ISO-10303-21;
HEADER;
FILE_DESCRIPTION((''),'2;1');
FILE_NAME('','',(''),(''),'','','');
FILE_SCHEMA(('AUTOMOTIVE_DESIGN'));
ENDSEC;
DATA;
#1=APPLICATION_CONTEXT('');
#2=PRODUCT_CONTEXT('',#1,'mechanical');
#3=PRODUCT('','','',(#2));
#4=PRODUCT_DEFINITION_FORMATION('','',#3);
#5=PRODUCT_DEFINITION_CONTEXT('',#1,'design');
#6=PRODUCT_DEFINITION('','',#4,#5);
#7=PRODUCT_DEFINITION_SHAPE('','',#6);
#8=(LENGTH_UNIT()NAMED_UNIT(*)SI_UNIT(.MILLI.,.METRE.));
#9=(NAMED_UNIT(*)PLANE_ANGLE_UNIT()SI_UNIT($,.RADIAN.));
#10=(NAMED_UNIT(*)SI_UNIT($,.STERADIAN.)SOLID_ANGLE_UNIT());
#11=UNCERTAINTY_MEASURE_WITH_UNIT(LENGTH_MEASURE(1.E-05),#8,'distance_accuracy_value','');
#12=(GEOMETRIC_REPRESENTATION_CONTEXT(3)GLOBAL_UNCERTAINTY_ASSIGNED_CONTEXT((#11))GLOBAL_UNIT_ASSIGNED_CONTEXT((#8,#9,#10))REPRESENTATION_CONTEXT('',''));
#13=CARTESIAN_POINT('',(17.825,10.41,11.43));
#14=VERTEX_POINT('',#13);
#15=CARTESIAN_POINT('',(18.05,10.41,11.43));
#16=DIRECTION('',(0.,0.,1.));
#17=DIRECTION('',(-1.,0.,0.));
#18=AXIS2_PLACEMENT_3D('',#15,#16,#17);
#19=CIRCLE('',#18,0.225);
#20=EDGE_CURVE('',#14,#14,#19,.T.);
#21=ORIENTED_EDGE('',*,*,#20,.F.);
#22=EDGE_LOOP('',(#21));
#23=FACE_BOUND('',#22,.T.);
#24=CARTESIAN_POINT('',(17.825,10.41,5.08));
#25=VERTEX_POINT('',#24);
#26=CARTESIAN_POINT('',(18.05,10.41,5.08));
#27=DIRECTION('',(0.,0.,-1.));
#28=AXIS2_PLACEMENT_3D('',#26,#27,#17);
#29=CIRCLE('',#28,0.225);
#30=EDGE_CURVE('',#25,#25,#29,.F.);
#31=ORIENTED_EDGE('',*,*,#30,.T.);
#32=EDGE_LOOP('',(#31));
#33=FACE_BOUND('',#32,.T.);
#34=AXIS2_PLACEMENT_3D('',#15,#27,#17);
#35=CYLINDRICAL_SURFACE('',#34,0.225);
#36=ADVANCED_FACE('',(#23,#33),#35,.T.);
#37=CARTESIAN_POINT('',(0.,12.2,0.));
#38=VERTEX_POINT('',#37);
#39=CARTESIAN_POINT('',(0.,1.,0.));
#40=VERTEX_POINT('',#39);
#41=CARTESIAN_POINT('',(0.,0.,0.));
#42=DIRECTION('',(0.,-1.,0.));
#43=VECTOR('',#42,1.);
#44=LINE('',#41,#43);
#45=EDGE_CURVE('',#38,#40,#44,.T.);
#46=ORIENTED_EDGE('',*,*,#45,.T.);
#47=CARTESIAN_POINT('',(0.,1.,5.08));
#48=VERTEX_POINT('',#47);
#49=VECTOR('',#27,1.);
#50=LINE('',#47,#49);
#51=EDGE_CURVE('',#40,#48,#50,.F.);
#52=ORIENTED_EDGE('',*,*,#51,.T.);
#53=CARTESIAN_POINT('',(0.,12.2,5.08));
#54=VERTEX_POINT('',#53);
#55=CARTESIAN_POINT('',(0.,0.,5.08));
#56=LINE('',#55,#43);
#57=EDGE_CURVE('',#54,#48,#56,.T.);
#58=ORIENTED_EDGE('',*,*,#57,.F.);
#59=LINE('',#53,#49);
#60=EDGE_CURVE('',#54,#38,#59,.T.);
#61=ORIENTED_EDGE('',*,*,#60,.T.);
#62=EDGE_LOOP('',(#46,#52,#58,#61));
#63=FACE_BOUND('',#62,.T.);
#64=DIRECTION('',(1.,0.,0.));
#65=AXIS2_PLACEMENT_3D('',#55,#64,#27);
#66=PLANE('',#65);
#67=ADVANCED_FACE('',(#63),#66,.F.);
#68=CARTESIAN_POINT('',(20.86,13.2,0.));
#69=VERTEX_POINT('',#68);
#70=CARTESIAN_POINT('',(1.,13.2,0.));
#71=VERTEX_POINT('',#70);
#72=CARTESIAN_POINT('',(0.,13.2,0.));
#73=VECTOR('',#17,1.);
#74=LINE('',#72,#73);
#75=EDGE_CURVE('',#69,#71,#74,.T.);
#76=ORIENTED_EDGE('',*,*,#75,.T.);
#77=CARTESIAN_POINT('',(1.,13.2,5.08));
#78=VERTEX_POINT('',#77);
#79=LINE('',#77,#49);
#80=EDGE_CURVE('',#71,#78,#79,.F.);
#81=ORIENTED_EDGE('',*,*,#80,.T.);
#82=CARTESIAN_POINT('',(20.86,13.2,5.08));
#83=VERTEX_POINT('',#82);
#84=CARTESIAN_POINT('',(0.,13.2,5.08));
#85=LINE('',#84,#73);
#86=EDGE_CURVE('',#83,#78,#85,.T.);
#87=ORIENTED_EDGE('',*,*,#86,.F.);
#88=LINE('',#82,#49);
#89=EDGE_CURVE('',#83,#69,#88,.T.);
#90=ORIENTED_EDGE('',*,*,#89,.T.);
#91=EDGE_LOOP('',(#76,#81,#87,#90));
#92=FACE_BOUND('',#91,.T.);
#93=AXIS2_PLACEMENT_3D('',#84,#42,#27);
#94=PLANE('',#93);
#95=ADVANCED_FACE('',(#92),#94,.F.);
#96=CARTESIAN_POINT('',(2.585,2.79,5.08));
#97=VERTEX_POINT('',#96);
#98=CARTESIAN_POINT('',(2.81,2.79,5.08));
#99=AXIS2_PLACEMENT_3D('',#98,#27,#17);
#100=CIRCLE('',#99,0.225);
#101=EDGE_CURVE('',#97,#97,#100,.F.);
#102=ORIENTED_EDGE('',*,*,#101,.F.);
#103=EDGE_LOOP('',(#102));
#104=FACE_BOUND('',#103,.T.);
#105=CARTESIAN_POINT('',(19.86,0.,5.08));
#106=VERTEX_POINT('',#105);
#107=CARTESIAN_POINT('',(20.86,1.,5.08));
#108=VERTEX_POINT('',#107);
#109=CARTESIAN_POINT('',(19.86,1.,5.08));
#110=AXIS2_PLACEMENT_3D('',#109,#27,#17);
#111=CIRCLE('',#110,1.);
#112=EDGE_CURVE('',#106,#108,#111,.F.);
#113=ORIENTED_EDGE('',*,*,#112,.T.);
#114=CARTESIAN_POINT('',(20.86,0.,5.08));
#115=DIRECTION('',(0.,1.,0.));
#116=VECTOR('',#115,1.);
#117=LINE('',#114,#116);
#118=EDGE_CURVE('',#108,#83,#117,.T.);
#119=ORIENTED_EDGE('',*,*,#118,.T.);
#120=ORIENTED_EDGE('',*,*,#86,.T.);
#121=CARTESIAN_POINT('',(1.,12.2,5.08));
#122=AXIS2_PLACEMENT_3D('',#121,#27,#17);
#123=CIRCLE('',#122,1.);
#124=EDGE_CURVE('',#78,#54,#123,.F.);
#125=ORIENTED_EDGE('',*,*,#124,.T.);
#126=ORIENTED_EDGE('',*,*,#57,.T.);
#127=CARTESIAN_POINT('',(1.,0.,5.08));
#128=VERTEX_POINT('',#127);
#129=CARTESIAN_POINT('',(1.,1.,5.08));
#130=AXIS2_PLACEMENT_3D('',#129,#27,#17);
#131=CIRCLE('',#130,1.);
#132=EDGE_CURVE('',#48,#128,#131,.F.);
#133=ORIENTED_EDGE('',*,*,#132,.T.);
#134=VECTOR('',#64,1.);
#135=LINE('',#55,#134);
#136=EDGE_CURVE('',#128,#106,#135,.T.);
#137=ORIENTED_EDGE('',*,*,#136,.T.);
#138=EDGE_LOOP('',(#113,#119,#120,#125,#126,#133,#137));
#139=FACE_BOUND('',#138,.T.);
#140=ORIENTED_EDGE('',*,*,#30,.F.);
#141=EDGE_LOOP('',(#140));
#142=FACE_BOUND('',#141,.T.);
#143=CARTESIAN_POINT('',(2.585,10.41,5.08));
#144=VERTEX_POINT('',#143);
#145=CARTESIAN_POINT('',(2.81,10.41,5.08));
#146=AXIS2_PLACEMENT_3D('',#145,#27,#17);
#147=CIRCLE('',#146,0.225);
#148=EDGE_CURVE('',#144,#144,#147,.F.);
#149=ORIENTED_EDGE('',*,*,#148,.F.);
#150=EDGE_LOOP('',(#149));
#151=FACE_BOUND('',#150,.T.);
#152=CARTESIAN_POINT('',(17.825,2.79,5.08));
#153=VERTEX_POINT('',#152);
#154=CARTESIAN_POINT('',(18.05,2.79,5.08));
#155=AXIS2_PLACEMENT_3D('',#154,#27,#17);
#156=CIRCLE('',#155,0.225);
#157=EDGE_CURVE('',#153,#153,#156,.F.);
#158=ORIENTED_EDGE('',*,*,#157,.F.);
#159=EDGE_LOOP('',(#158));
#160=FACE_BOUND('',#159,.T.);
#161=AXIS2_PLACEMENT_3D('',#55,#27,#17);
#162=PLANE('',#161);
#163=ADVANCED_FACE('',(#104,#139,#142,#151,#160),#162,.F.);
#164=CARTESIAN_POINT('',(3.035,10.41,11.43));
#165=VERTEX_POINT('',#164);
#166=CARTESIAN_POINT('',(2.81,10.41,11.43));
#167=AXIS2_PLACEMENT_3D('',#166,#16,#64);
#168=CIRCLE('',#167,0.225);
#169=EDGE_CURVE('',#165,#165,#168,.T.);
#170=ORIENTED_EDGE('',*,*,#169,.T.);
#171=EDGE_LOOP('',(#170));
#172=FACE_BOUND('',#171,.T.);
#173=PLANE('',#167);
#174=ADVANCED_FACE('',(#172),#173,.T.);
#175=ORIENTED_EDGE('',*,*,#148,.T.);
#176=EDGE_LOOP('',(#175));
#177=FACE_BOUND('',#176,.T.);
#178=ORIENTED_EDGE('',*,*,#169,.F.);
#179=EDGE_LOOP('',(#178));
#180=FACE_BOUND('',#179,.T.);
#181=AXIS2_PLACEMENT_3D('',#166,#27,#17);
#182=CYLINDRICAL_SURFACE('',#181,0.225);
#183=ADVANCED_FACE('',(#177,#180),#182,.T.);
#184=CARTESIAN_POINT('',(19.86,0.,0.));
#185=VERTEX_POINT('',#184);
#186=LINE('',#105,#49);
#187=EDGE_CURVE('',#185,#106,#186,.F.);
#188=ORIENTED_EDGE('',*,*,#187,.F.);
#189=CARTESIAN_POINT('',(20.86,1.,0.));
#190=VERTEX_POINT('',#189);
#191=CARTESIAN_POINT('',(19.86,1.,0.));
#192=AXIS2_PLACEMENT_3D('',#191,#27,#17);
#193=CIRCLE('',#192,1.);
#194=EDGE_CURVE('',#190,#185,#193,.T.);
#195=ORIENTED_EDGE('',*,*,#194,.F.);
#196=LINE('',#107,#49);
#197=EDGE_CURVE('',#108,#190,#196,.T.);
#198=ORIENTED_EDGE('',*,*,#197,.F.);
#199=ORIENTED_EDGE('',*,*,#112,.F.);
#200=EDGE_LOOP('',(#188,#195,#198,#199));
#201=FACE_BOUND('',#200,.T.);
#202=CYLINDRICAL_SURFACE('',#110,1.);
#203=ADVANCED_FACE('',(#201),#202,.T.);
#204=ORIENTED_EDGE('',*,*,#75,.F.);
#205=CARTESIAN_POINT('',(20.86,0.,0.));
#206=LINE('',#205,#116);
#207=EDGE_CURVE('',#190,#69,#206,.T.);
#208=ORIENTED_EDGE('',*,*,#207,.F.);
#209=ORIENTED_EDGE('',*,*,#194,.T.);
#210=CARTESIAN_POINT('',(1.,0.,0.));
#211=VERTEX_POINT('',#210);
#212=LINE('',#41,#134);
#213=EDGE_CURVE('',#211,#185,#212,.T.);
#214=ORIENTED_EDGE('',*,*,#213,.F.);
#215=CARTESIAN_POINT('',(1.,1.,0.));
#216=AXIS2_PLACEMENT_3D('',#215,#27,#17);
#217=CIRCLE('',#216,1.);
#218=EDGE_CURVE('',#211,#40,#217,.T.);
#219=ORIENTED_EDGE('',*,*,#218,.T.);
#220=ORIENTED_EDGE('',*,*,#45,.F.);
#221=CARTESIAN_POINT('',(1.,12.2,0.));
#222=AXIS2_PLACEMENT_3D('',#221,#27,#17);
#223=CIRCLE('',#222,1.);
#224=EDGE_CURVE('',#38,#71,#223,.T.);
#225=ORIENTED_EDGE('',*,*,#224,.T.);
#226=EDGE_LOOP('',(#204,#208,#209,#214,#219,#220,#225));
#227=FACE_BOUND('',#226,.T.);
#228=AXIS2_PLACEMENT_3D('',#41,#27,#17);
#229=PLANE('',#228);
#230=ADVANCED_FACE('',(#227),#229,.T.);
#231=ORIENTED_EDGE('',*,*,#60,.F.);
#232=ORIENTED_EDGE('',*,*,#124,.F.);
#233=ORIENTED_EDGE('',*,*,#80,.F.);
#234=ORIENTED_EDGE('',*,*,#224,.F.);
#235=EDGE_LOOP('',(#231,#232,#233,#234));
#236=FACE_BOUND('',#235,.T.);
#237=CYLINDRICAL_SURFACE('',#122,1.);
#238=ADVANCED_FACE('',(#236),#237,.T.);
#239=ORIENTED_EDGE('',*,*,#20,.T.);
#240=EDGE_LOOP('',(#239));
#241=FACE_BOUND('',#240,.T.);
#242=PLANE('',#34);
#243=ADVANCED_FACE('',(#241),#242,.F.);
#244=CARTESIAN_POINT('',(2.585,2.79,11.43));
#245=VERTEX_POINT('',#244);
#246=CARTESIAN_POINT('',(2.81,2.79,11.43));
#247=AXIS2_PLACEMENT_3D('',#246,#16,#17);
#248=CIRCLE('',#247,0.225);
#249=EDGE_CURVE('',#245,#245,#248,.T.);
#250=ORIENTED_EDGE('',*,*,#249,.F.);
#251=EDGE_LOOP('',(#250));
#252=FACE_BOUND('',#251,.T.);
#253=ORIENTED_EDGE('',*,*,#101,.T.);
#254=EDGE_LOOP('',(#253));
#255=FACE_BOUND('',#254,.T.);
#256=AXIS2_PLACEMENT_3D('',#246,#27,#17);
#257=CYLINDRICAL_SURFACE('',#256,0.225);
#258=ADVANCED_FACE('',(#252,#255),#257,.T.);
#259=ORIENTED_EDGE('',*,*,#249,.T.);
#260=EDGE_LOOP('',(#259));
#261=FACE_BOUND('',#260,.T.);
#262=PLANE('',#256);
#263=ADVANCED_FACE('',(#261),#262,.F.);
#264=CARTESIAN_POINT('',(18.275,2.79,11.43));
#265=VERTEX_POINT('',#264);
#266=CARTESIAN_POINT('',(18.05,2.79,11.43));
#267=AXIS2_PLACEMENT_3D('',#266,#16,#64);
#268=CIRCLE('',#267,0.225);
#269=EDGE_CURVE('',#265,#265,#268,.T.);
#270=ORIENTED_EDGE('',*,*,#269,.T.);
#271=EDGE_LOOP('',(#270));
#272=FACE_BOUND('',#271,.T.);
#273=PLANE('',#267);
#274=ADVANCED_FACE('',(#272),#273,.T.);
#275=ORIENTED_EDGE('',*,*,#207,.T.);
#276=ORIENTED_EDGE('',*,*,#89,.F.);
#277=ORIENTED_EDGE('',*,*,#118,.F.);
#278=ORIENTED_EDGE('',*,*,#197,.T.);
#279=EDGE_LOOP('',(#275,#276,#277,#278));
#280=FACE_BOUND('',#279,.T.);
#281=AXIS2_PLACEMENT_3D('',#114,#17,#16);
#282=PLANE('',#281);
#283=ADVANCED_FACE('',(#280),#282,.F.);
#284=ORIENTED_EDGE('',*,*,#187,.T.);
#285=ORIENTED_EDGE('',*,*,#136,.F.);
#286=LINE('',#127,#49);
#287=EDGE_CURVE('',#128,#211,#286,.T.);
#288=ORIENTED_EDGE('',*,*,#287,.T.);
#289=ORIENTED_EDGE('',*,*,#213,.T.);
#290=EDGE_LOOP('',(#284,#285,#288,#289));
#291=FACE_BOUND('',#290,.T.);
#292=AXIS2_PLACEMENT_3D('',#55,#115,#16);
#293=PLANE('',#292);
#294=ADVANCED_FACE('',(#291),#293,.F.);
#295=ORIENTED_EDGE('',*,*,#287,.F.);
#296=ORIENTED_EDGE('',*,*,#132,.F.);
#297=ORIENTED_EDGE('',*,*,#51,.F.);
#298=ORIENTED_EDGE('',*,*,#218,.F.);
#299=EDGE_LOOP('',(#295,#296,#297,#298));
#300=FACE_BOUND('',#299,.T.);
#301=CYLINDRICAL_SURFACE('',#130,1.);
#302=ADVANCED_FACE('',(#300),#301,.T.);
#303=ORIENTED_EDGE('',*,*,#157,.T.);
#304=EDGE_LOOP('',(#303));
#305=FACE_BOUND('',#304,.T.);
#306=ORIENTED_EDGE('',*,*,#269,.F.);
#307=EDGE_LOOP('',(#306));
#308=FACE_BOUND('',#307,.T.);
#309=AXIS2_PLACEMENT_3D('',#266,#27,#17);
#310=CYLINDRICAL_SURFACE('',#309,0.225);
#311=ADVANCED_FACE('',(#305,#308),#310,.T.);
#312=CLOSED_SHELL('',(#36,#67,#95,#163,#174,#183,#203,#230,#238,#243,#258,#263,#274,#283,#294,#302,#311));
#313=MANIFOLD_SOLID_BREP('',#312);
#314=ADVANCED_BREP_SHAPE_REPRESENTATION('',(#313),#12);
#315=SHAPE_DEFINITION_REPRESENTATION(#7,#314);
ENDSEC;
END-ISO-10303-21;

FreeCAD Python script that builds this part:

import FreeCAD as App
import Part
import Sketcher


def edges_at(feature, points):
    """Names of the edges that pass closest to the given points."""
    edges = feature.Shape.Edges
    near = lambda p: min(range(len(edges)), key=lambda i: edges[i].distToShape(Part.Vertex(*p))[0])
    return sorted({f"Edge{near(p) + 1}" for p in points})


def add_polygon(sketch, points):
    """Adds a closed chain of lines whose ends are joined by coincident constraints."""
    first, n = sketch.GeometryCount, len(points)
    for a, b in zip(points, points[1:] + points[:1]):
        sketch.addGeometry(Part.LineSegment(App.Vector(*a, 0), App.Vector(*b, 0)), False)
    for i in range(n):
        sketch.addConstraint(Sketcher.Constraint("Coincident", first + i, 2, first + (i + 1) % n, 1))

doc = App.newDocument("Part")
body = doc.addObject("PartDesign::Body", "Body")

sketch1 = doc.addObject("Sketcher::SketchObject", "Sketch")
body.addObject(sketch1)
sketch1.AttachmentSupport = (doc.XY_Plane, [""])
sketch1.MapMode = "FlatFace"
add_polygon(sketch1, [(0, 13.2), (0, 0), (20.86, 0), (20.86, 13.2)])
sketch1.addConstraint([
    Sketcher.Constraint("Vertical", 0),
    Sketcher.Constraint("Horizontal", 1),
    Sketcher.Constraint("Vertical", 2),
    Sketcher.Constraint("Horizontal", 3),
    Sketcher.Constraint("Coincident", 0, 2, -1, 1),
    Sketcher.Constraint("DistanceY", 0, 2, 0, 1, 13.2),
    Sketcher.Constraint("DistanceX", 1, 1, 1, 2, 20.86),
])
pad1 = doc.addObject("PartDesign::Pad", "Pad")
body.addObject(pad1)
pad1.Profile = sketch1
pad1.Length = 5.08

sketch2 = doc.addObject("Sketcher::SketchObject", "Sketch001")
body.addObject(sketch2)
sketch2.AttachmentSupport = (doc.XY_Plane, [""])
sketch2.MapMode = "FlatFace"
sketch2.AttachmentOffset = App.Placement(App.Vector(0, 0, 5.08), App.Rotation())
sketch2.addGeometry([
    Part.Circle(App.Vector(2.81, 10.41, 0), App.Vector(0, 0, 1), 0.225),
    Part.Circle(App.Vector(18.05, 10.41, 0), App.Vector(0, 0, 1), 0.225),
    Part.Circle(App.Vector(18.05, 2.79, 0), App.Vector(0, 0, 1), 0.225),
    Part.Circle(App.Vector(2.81, 2.79, 0), App.Vector(0, 0, 1), 0.225),
], False)
sketch2.addConstraint([
    Sketcher.Constraint("Equal", 0, 1),
    Sketcher.Constraint("Equal", 1, 2),
    Sketcher.Constraint("Equal", 2, 3),
    Sketcher.Constraint("Horizontal", 0, 3, 1, 3),
    Sketcher.Constraint("Horizontal", 2, 3, 3, 3),
    Sketcher.Constraint("Vertical", 1, 3, 2, 3),
    Sketcher.Constraint("Vertical", 0, 3, 3, 3),
    Sketcher.Constraint("Diameter", 0, 0.45),
    Sketcher.Constraint("DistanceX", -1, 1, 0, 3, 2.81),
    Sketcher.Constraint("DistanceY", -1, 1, 0, 3, 10.41),
    Sketcher.Constraint("DistanceX", -1, 1, 1, 3, 18.05),
    Sketcher.Constraint("DistanceY", -1, 1, 2, 3, 2.79),
])
pad2 = doc.addObject("PartDesign::Pad", "Pad001")
body.addObject(pad2)
pad2.Profile = sketch2
pad2.Length = 6.35
doc.recompute()

fillet = doc.addObject("PartDesign::Fillet", "Fillet")
body.addObject(fillet)
fillet.Base = (pad2, edges_at(pad2, [(0, 13.2, 2.54), (20.86, 0, 2.54), (0, 0, 2.54)]))
fillet.Radius = 1

doc.recompute()
